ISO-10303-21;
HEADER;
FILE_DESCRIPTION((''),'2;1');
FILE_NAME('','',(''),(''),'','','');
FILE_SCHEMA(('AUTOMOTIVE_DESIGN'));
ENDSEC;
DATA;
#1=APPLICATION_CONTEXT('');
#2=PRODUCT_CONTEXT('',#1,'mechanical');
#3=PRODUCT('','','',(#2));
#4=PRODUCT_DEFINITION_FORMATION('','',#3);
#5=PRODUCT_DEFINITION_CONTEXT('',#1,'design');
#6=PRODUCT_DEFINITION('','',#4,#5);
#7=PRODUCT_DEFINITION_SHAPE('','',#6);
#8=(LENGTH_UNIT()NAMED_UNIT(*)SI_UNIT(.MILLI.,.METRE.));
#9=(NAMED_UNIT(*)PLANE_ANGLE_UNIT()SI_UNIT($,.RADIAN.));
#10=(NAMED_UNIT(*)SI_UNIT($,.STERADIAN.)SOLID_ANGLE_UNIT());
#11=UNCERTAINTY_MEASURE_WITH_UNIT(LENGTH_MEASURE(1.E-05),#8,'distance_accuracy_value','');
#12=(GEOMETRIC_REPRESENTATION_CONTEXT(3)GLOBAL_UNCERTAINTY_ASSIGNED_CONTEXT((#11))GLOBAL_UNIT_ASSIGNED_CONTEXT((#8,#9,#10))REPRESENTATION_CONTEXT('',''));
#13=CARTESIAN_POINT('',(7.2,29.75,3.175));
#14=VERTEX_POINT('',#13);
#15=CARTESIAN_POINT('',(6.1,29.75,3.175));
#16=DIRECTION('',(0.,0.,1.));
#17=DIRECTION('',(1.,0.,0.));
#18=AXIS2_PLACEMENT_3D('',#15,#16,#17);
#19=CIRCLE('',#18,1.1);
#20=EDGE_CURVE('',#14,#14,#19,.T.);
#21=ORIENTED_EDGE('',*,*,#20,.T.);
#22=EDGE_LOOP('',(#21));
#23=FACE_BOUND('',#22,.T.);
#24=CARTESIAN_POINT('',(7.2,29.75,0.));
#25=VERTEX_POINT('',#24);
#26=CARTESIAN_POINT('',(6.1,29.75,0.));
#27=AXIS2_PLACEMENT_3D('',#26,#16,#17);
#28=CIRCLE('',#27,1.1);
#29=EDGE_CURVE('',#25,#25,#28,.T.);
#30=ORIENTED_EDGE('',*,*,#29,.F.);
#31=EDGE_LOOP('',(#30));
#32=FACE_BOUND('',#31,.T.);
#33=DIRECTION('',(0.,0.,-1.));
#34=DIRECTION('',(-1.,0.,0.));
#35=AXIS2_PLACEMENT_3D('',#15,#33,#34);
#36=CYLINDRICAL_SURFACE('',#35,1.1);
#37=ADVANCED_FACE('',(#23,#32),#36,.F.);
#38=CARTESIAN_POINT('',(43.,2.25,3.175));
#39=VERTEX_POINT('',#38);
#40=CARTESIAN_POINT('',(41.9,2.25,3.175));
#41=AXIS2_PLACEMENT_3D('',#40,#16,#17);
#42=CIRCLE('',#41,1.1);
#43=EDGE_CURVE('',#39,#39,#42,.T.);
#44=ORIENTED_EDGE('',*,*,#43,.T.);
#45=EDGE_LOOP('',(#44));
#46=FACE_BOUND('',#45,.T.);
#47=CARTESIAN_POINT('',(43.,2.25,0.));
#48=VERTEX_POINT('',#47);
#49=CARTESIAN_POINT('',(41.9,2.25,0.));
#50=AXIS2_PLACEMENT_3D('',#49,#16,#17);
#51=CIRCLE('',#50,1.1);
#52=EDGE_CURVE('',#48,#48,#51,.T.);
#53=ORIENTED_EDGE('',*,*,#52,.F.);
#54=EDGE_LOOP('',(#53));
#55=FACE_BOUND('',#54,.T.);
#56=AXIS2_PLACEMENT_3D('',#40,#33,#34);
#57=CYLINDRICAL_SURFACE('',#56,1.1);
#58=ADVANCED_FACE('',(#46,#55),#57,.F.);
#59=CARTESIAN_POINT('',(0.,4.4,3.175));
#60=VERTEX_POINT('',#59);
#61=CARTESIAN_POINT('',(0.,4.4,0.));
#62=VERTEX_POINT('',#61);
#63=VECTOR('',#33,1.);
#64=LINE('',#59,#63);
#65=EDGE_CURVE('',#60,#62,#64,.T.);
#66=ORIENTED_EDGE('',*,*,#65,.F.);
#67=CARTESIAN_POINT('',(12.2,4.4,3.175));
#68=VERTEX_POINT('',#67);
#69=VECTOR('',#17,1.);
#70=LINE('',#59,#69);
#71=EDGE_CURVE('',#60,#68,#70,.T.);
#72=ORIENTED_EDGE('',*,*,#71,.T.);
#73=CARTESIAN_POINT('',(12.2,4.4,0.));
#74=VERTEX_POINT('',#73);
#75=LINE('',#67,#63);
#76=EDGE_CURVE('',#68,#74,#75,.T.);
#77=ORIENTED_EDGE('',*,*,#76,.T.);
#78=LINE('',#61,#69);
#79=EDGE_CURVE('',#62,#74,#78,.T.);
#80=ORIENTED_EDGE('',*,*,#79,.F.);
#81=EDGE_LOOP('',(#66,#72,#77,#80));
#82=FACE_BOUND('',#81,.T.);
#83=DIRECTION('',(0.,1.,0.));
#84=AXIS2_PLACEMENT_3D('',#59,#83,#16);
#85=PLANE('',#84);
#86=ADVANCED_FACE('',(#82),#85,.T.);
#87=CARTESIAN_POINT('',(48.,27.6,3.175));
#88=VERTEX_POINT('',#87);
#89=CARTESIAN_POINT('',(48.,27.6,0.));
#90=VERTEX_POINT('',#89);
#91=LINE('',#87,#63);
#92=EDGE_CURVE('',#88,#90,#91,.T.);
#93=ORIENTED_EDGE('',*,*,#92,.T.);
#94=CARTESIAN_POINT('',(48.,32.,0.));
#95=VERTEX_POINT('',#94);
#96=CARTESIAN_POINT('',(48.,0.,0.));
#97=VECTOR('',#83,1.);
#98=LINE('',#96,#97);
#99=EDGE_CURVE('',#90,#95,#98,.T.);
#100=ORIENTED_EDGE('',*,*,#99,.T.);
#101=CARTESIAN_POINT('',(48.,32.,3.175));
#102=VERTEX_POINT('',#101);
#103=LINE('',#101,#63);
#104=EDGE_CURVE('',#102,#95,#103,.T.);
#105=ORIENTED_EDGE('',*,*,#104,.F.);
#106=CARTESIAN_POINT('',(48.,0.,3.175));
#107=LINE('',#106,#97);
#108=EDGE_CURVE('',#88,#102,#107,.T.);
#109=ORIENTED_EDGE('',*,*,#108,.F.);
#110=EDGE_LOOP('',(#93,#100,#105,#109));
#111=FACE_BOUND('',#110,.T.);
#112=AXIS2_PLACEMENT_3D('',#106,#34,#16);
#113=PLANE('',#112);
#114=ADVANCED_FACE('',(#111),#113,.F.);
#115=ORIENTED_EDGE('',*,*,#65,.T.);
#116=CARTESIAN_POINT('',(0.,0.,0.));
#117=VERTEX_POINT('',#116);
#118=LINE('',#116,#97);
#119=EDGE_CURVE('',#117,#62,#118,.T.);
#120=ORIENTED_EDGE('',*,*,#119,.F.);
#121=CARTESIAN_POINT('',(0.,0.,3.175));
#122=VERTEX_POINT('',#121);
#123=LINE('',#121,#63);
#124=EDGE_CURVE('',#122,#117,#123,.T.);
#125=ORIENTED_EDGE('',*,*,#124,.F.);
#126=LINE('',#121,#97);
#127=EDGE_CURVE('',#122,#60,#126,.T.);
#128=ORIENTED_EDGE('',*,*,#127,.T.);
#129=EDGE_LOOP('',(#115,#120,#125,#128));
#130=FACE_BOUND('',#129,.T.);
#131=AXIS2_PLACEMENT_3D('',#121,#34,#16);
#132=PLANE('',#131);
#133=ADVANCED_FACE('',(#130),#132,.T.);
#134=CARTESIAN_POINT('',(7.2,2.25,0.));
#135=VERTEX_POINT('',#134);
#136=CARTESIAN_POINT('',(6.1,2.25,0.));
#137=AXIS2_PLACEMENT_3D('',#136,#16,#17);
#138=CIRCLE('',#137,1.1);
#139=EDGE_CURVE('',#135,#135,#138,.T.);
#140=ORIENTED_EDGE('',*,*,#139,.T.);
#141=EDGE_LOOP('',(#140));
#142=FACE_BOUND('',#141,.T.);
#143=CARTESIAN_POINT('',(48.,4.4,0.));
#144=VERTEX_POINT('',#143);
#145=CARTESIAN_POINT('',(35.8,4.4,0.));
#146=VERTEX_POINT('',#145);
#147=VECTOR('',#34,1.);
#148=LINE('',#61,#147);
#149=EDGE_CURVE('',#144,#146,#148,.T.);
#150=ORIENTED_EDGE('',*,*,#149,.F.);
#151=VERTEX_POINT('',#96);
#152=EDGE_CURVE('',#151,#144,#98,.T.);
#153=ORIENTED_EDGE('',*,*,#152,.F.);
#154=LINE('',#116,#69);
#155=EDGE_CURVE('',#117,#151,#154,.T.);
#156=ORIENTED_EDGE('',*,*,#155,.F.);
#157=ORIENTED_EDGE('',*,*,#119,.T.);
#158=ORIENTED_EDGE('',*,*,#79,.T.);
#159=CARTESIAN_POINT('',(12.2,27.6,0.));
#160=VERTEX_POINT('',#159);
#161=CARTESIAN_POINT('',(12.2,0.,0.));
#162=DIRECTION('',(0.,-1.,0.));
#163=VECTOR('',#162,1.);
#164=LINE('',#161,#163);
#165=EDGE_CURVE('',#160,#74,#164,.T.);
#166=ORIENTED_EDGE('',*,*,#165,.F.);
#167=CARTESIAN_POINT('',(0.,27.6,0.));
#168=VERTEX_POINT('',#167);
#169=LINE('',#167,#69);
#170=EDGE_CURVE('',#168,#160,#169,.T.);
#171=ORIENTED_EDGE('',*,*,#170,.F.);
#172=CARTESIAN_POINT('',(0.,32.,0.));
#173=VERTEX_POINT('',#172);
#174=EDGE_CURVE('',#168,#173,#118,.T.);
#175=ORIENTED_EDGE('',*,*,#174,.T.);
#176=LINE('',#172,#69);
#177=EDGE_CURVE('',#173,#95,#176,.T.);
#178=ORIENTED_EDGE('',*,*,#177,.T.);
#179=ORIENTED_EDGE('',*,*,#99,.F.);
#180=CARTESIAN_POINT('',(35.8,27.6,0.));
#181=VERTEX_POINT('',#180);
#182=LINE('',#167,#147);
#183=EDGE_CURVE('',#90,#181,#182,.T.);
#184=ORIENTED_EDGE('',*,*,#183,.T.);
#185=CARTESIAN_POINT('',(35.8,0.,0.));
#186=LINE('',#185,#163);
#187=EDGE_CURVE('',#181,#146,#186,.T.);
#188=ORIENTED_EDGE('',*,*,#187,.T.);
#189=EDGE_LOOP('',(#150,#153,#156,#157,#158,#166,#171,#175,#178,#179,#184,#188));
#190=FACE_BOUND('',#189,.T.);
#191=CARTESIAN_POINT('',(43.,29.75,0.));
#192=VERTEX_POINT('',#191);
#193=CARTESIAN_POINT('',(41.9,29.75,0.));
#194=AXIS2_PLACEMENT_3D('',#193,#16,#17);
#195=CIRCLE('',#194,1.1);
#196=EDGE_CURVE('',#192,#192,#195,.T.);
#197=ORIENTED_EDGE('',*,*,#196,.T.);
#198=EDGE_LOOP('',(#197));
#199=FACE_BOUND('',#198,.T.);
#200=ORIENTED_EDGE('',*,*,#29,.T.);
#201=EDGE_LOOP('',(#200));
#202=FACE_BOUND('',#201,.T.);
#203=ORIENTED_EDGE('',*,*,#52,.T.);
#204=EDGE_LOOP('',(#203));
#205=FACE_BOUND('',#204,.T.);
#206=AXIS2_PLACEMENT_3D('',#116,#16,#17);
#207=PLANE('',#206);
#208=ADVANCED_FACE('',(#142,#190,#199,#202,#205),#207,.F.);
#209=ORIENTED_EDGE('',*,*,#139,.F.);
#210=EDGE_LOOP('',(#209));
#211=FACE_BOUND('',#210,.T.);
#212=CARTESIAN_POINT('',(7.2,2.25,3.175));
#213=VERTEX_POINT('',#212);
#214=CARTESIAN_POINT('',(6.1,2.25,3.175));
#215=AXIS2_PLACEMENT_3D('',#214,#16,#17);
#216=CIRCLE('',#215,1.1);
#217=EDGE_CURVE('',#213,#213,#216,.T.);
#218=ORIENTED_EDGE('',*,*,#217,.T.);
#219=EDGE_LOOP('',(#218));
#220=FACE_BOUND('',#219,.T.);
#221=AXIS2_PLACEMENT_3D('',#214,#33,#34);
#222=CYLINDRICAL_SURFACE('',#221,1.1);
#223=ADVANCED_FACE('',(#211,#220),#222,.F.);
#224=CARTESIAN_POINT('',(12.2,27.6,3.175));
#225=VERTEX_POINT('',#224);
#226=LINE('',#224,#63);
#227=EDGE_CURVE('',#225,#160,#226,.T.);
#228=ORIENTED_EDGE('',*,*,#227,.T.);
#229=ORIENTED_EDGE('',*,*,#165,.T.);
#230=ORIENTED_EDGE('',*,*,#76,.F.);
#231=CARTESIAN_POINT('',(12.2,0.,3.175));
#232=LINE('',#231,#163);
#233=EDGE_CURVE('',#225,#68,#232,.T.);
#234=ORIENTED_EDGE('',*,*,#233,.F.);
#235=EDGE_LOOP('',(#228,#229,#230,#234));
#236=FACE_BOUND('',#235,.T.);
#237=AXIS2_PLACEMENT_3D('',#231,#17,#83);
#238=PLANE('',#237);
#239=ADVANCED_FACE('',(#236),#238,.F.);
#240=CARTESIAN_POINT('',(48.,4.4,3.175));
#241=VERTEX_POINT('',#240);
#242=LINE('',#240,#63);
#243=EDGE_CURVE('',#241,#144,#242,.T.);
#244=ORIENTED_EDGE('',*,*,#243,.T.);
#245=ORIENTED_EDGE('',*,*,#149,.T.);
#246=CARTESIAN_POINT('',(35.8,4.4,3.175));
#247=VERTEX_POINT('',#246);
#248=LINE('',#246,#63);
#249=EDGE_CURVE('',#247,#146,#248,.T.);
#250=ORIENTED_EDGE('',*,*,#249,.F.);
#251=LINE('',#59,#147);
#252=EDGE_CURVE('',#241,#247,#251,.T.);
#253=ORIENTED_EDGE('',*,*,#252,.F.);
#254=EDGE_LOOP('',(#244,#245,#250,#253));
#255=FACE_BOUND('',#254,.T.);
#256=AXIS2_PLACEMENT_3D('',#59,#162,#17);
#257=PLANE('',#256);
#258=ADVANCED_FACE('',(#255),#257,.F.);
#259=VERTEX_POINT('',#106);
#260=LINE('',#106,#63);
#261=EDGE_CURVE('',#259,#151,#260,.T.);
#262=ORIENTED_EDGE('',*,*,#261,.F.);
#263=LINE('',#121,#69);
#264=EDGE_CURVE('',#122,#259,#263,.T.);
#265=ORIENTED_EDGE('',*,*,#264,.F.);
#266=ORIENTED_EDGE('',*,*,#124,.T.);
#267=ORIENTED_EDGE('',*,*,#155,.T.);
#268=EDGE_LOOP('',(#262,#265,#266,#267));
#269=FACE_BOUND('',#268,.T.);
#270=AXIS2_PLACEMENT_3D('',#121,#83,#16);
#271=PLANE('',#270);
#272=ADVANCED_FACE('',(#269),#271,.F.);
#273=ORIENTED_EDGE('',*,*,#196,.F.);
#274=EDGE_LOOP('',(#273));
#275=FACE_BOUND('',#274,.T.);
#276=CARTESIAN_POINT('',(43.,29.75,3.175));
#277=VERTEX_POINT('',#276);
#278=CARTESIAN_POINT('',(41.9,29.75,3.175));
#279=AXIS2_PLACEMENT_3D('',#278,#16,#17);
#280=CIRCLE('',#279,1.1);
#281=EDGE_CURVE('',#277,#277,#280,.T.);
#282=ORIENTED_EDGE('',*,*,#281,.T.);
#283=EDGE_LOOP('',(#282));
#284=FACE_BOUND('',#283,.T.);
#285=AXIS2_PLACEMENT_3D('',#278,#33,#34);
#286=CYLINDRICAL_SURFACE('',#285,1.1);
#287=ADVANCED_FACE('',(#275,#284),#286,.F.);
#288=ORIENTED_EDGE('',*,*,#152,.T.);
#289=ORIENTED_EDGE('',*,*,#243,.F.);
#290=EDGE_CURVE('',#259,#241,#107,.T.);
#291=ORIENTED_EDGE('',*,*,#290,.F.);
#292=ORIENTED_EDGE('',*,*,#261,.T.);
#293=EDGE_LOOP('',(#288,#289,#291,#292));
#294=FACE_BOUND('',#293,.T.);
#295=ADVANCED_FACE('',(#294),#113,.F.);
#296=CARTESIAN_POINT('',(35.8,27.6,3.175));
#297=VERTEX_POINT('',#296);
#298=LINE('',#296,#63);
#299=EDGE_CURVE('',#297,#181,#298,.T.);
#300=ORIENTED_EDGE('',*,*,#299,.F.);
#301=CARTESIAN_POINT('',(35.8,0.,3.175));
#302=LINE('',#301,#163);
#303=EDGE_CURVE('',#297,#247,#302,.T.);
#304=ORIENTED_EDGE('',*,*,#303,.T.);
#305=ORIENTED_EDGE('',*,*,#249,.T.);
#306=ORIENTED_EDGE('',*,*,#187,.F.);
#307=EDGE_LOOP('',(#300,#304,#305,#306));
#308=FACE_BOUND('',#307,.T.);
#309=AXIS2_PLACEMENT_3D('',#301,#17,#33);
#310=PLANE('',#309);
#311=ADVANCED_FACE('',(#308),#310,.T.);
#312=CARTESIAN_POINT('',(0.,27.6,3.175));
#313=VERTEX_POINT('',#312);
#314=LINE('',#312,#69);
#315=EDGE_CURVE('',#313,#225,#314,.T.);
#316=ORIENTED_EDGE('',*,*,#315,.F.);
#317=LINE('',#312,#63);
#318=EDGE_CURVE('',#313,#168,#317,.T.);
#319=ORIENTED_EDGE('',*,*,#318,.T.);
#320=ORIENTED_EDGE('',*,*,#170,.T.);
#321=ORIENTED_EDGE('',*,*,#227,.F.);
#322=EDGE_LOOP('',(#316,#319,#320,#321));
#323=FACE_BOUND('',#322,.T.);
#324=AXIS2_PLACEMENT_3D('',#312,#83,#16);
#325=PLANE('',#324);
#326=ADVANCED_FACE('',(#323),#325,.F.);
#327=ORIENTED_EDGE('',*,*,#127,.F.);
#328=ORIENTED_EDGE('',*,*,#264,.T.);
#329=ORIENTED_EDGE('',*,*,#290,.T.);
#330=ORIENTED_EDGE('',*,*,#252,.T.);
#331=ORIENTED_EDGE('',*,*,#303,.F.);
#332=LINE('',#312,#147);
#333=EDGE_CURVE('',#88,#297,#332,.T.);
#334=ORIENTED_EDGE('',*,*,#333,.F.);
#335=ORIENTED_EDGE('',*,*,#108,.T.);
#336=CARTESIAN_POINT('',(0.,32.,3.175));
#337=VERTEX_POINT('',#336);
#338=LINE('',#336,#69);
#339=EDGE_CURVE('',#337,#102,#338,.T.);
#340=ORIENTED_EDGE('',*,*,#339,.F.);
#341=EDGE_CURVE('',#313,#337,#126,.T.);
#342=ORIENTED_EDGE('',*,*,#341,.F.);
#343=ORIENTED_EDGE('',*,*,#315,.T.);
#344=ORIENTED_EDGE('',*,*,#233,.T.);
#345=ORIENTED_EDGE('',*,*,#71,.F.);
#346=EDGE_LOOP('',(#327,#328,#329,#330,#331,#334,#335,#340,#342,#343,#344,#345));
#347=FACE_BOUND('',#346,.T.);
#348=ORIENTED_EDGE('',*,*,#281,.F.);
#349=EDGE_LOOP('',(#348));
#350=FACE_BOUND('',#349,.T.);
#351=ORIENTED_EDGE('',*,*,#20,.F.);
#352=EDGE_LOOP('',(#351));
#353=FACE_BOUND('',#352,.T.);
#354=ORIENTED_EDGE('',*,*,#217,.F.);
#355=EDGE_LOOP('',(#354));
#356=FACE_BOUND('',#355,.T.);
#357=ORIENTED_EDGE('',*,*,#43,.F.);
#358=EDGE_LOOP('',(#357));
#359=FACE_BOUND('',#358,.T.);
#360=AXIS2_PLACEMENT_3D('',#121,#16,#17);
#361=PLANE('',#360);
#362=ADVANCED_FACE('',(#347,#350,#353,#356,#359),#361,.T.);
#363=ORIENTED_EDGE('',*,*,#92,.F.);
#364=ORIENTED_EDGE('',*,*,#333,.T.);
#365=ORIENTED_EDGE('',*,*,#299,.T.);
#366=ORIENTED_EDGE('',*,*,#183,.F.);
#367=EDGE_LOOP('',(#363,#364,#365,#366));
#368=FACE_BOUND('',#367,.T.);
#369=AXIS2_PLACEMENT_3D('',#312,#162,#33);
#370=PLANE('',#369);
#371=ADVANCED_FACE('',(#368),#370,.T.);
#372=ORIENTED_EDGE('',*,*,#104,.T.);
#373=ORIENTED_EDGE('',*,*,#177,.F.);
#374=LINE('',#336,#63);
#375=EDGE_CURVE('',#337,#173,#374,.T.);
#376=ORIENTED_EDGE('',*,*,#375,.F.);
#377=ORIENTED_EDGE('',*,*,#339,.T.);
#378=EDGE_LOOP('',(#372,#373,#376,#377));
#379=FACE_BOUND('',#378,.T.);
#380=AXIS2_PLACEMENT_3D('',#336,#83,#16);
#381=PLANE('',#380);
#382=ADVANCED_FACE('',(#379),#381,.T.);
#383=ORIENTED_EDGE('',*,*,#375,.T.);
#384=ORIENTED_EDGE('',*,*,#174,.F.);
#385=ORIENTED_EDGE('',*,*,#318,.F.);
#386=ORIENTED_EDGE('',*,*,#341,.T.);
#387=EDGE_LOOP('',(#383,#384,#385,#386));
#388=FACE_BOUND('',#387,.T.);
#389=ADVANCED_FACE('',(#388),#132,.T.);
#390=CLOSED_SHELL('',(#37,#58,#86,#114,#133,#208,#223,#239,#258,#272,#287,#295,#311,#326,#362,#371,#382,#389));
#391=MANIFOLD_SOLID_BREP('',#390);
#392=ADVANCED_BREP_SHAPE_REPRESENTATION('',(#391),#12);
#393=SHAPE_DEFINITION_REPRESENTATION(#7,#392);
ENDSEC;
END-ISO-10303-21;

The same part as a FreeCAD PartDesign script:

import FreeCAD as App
import Part
import Sketcher

V = App.Vector
Q = App.Units.Quantity


def add_polygon(sketch, points):
    """Adds a closed chain of lines whose ends are joined by coincident constraints."""
    first, n = sketch.GeometryCount, len(points)
    for a, b in zip(points, points[1:] + points[:1]):
        sketch.addGeometry(Part.LineSegment(App.Vector(*a, 0), App.Vector(*b, 0)), False)
    for i in range(n):
        sketch.addConstraint(Sketcher.Constraint("Coincident", first + i, 2, first + (i + 1) % n, 1))

doc = App.newDocument("Part")
params = doc.addObject("Spreadsheet::Sheet", "Params")
for row, (alias, value) in enumerate([
    ("sketch1_diameter", "2.2 mm"),
    ("sketch1_width", "48 mm"),
    ("sketch1_width2", "12.2 mm"),
    ("sketch1_height", "4.4 mm"),
    ("sketch1_height2", "23.2 mm"),
    ("pad1_length", "3.175 mm"),
], start=1):
    params.set(f"A{row}", alias)
    params.set(f"B{row}", "=" + value)
    params.setAlias(f"B{row}", alias)

body = doc.addObject("PartDesign::Body", "Body")

# Sketch on XY plane
sketch1 = body.newObject("Sketcher::SketchObject", "Sketch")
sketch1.AttachmentSupport = (doc.getObject("XY_Plane"), [""])
sketch1.MapMode = "FlatFace"
add_polygon(sketch1, [(0, 4.4), (0, 0), (48, 0), (48, 4.4), (35.8, 4.4), (35.8, 27.6), (48, 27.6), (48, 32), (0, 32), (0, 27.6), (12.2, 27.6), (12.2, 4.4)])  # lines 0-11
sketch1.addGeometry(Part.Circle(V(6.1, 2.2, 0), V(0, 0, 1), 1.1), False)  # 12
sketch1.addGeometry(Part.Circle(V(41.9, 2.2, 0), V(0, 0, 1), 1.1), False)  # 13
sketch1.addGeometry(Part.Circle(V(6.1, 29.8, 0), V(0, 0, 1), 1.1), False)  # 14
sketch1.addGeometry(Part.Circle(V(41.9, 29.8, 0), V(0, 0, 1), 1.1), False)  # 15
sketch1.addConstraint([
    Sketcher.Constraint("Vertical", 0),
    Sketcher.Constraint("Horizontal", 1),
    Sketcher.Constraint("Vertical", 2),
    Sketcher.Constraint("Horizontal", 3),
    Sketcher.Constraint("Vertical", 4),
    Sketcher.Constraint("Horizontal", 5),
    Sketcher.Constraint("Vertical", 6),
    Sketcher.Constraint("Horizontal", 7),
    Sketcher.Constraint("Vertical", 8),
    Sketcher.Constraint("Horizontal", 9),
    Sketcher.Constraint("Vertical", 10),
    Sketcher.Constraint("Horizontal", 11),
    Sketcher.Constraint("Coincident", 0, 2, -1, 1),
    Sketcher.Constraint("Equal", 12, 13),
    Sketcher.Constraint("Equal", 13, 14),
    Sketcher.Constraint("Equal", 14, 15),
    Sketcher.Constraint("PointOnObject", 7, 2, -2),
    Sketcher.Constraint("Horizontal", 12, 3, 13, 3),
    Sketcher.Constraint("Horizontal", 14, 3, 15, 3),
    Sketcher.Constraint("Horizontal", 5, 2, 8, 2),
    Sketcher.Constraint("Horizontal", 3, 2, 10, 2),
    Sketcher.Constraint("Vertical", 12, 3, 14, 3),
    Sketcher.Constraint("Vertical", 13, 3, 15, 3),
    Sketcher.Constraint("Vertical", 2, 2, 5, 2),
    Sketcher.Constraint("Equal", 5, 9),
    Sketcher.Constraint("Equal", 2, 6),
    Sketcher.Constraint("Diameter", 12, Q("2.2 mm")),
    Sketcher.Constraint("DistanceX", 1, 1, 1, 2, Q("48 mm")),
    Sketcher.Constraint("DistanceX", 3, 2, 3, 1, Q("12.2 mm")),
    Sketcher.Constraint("DistanceY", 0, 2, 0, 1, Q("4.4 mm")),
    Sketcher.Constraint("DistanceY", 4, 1, 4, 2, Q("23.2 mm")),
    Sketcher.Constraint("DistanceX", -1, 1, 12, 3, Q("6.1 mm")),
    Sketcher.Constraint("DistanceX", -1, 1, 13, 3, Q("41.9 mm")),
    Sketcher.Constraint("DistanceY", 12, 3, 14, 3, Q("27.5 mm")),
    Sketcher.Constraint("DistanceY", -1, 1, 12, 3, Q("2.25 mm")),
])
sketch1.setExpression("Constraints[38]", "Params.sketch1_diameter")
sketch1.setExpression("Constraints[39]", "Params.sketch1_width")
sketch1.setExpression("Constraints[40]", "Params.sketch1_width2")
sketch1.setExpression("Constraints[41]", "Params.sketch1_height")
sketch1.setExpression("Constraints[42]", "Params.sketch1_height2")
pad1 = body.newObject("PartDesign::Pad", "Pad")
pad1.Profile = sketch1
pad1.setExpression("Length", "Params.pad1_length")

doc.recompute()
